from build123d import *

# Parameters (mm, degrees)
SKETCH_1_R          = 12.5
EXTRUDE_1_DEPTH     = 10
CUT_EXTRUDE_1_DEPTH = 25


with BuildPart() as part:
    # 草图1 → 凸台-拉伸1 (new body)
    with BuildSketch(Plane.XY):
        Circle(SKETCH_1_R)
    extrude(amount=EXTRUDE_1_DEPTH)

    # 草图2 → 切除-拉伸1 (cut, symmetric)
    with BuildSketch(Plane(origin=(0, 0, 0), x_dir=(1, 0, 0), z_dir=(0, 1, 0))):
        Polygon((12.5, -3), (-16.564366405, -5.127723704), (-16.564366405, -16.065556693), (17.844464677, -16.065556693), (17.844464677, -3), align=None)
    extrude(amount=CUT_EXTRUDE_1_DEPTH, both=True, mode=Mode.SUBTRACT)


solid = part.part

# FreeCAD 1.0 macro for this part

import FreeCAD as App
import Part
import Sketcher
Q = App.Units.Quantity

doc = App.newDocument("Part")
body = doc.addObject("PartDesign::Body", "Body")

sketch1 = body.newObject("Sketcher::SketchObject", "Sketch")
sketch1.AttachmentSupport = (doc.getObject("XY_Plane"), [""])
sketch1.MapMode = "FlatFace"
sketch1.addGeometry(Part.Circle(App.Vector(0, 0, 0), App.Vector(0, 0, 1), 12.5), False)
sketch1.addConstraint([
    Sketcher.Constraint("Coincident", 0, 3, -1, 1),
    Sketcher.Constraint("Diameter", 0, Q("25 mm")),
])
pad1 = body.newObject("PartDesign::Pad", "Pad")
pad1.Profile = sketch1
pad1.Length = 10

sketch2 = body.newObject("Sketcher::SketchObject", "Sketch001")
sketch2.AttachmentSupport = (doc.getObject("XZ_Plane"), [""])
sketch2.MapMode = "FlatFace"
sketch2.addGeometry([
    Part.LineSegment(App.Vector(12.5, 3, 0), App.Vector(-16.564366, 5.127724, 0)),
    Part.LineSegment(App.Vector(-16.564366, 5.127724, 0), App.Vector(-16.564366, 16.065557, 0)),
    Part.LineSegment(App.Vector(-16.564366, 16.065557, 0), App.Vector(17.844465, 16.065557, 0)),
    Part.LineSegment(App.Vector(17.844465, 16.065557, 0), App.Vector(17.844465, 3, 0)),
    Part.LineSegment(App.Vector(17.844465, 3, 0), App.Vector(12.5, 3, 0)),
], False)
sketch2.addConstraint([
    Sketcher.Constraint("Coincident", 0, 2, 1, 1),
    Sketcher.Constraint("Coincident", 1, 2, 2, 1),
    Sketcher.Constraint("Coincident", 2, 2, 3, 1),
    Sketcher.Constraint("Coincident", 3, 2, 4, 1),
    Sketcher.Constraint("Coincident", 4, 2, 0, 1),
    Sketcher.Constraint("Vertical", 1),
    Sketcher.Constraint("Horizontal", 2),
    Sketcher.Constraint("Vertical", 3),
    Sketcher.Constraint("Horizontal", 4),
    Sketcher.Constraint("DistanceY", -1, 1, 3, 2, Q("3 mm")),
    Sketcher.Constraint("DistanceX", -1, 1, 4, 2, Q("12.5 mm")),
    Sketcher.Constraint("DistanceX", 2, 1, 2, 2, Q("34.408831 mm")),
    Sketcher.Constraint("DistanceX", 4, 2, 4, 1, Q("5.344465 mm")),
    Sketcher.Constraint("DistanceY", 1, 1, 1, 2, Q("10.937833 mm")),
    Sketcher.Constraint("DistanceY", 3, 2, 3, 1, Q("13.065557 mm")),
])
pocket1 = body.newObject("PartDesign::Pocket", "Pocket")
pocket1.Profile = sketch2
pocket1.Length = 50
pocket1.Midplane = True

doc.recompute()
